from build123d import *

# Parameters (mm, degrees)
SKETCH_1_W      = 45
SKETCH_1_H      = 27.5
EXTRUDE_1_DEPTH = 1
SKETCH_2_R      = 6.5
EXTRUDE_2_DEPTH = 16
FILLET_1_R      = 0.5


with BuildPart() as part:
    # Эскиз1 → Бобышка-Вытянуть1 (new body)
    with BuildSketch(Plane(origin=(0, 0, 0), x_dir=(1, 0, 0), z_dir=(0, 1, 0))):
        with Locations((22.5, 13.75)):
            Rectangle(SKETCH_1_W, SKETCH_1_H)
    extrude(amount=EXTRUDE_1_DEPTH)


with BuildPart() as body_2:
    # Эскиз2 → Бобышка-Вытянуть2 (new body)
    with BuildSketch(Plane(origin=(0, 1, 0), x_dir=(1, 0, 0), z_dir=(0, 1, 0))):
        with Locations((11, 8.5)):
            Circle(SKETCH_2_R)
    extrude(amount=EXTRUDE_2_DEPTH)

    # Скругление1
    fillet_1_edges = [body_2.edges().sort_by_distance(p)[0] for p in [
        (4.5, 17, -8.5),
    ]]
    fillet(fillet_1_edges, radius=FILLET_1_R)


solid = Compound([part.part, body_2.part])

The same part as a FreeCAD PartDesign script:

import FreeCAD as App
import Part
import Sketcher

V = App.Vector


def edges_at(feature, points):
    """Names of the edges that pass closest to the given points."""
    edges = feature.Shape.Edges
    near = lambda p: min(range(len(edges)), key=lambda i: edges[i].distToShape(Part.Vertex(*p))[0])
    return sorted({f"Edge{near(p) + 1}" for p in points})

doc = App.newDocument("Part")
body = doc.addObject("PartDesign::Body", "Body")

sketch1 = body.newObject("Sketcher::SketchObject", "Sketch")
sketch1.AttachmentSupport = (doc.getObject("XZ_Plane"), [""])
sketch1.MapMode = "FlatFace"
sketch1.addGeometry([
    Part.LineSegment(V(0, -28, 0), V(0, 0, 0)),
    Part.LineSegment(V(0, 0, 0), V(45, 0, 0)),
    Part.LineSegment(V(45, 0, 0), V(45, -28, 0)),
    Part.LineSegment(V(45, -28, 0), V(0, -28, 0)),
], False)
sketch1.addConstraint([
    Sketcher.Constraint("Coincident", 0, 2, 1, 1),
    Sketcher.Constraint("Coincident", 1, 2, 2, 1),
    Sketcher.Constraint("Coincident", 2, 2, 3, 1),
    Sketcher.Constraint("Coincident", 3, 2, 0, 1),
    Sketcher.Constraint("Vertical", 0),
    Sketcher.Constraint("Horizontal", 1),
    Sketcher.Constraint("Vertical", 2),
    Sketcher.Constraint("Horizontal", 3),
    Sketcher.Constraint("Coincident", 0, 2, -1, 1),
    Sketcher.Constraint("DistanceX", 1, 1, 1, 2, 45.0),
    Sketcher.Constraint("DistanceY", 0, 1, 0, 2, 27.5),
])
pad1 = body.newObject("PartDesign::Pad", "Pad")
pad1.Profile = sketch1
pad1.Length = 1
pad1.Reversed = True
body2 = doc.addObject("PartDesign::Body", "Body001")

sketch2 = body2.newObject("Sketcher::SketchObject", "Sketch001")
sketch2.AttachmentSupport = (doc.getObject("XZ_Plane001"), [""])
sketch2.MapMode = "FlatFace"
sketch2.AttachmentOffset = App.Placement(V(0, 0, -1), App.Rotation())
sketch2.addGeometry(Part.Circle(V(11, -8, 0), V(0, 0, 1), 6), False)
sketch2.addConstraint([
    Sketcher.Constraint("Diameter", 0, 13.0),
    Sketcher.Constraint("DistanceX", -1, 1, 0, 3, 11.0),
    Sketcher.Constraint("DistanceY", 0, 3, -1, 1, 8.5),
])
pad2 = body2.newObject("PartDesign::Pad", "Pad001")
pad2.Profile = sketch2
pad2.Length = 16
pad2.Reversed = True
doc.recompute()

fillet = body2.newObject("PartDesign::Fillet", "Fillet")
fillet.Base = (pad2, edges_at(pad2, [(4.5, 17, -8.5)]))
fillet.Radius = 0.5

doc.recompute()
